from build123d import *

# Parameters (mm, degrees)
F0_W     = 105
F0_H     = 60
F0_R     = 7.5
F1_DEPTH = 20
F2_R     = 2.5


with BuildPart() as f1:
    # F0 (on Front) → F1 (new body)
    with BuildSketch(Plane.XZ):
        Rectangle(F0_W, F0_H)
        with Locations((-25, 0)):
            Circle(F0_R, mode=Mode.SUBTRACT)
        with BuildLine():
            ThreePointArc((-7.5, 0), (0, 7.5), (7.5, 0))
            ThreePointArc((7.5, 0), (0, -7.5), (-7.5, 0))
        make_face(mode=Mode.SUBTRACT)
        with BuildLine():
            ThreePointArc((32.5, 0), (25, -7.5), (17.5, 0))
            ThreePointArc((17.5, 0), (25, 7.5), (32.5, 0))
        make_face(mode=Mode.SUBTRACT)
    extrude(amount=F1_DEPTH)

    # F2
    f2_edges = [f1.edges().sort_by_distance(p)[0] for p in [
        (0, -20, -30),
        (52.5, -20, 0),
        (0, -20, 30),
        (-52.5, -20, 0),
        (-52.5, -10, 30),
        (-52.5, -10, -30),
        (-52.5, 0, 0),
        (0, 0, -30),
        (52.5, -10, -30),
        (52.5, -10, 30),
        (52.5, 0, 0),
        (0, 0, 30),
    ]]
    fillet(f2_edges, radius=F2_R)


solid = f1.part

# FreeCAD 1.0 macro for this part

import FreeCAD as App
import Part
import Sketcher
Q = App.Units.Quantity


def edges_at(feature, points):
    """Names of the edges that pass closest to the given points."""
    edges = feature.Shape.Edges
    near = lambda p: min(range(len(edges)), key=lambda i: edges[i].distToShape(Part.Vertex(*p))[0])
    return sorted({f"Edge{near(p) + 1}" for p in points})


def add_polygon(sketch, points):
    """Adds a closed chain of lines whose ends are joined by coincident constraints."""
    first, n = sketch.GeometryCount, len(points)
    for a, b in zip(points, points[1:] + points[:1]):
        sketch.addGeometry(Part.LineSegment(App.Vector(*a, 0), App.Vector(*b, 0)), False)
    for i in range(n):
        sketch.addConstraint(Sketcher.Constraint("Coincident", first + i, 2, first + (i + 1) % n, 1))

doc = App.newDocument("Part")
body = doc.addObject("PartDesign::Body", "Body")

# Sketch on XZ plane
sketch1 = body.newObject("Sketcher::SketchObject", "Sketch")
sketch1.AttachmentSupport = (doc.getObject("XZ_Plane"), [""])
sketch1.MapMode = "FlatFace"
add_polygon(sketch1, [(-52, 30), (-52, -30), (52, -30), (52, 30)])  # lines 0-3
sketch1.addGeometry(Part.Circle(App.Vector(-25, 0, 0), App.Vector(0, 0, 1), 8), False)  # 4
sketch1.addGeometry(Part.Circle(App.Vector(0, 0, 0), App.Vector(0, 0, 1), 8), False)  # 5
sketch1.addGeometry(Part.Circle(App.Vector(25, 0, 0), App.Vector(0, 0, 1), 8), False)  # 6
sketch1.addConstraint([
    Sketcher.Constraint("Vertical", 0),
    Sketcher.Constraint("Horizontal", 1),
    Sketcher.Constraint("Vertical", 2),
    Sketcher.Constraint("Horizontal", 3),
    Sketcher.Constraint("Coincident", 5, 3, -1, 1),
    Sketcher.Constraint("Equal", 4, 5),
    Sketcher.Constraint("Equal", 5, 6),
    Sketcher.Constraint("Symmetric", 4, 3, 6, 3, -1, 1),
    Sketcher.Constraint("Symmetric", 0, 2, 2, 2, -1, 1),
    Sketcher.Constraint("PointOnObject", 4, 3, -1),
    Sketcher.Constraint("Diameter", 4, Q("15 mm")),
    Sketcher.Constraint("DistanceX", 1, 1, 1, 2, Q("105 mm")),
    Sketcher.Constraint("DistanceY", 0, 2, 0, 1, Q("60 mm")),
    Sketcher.Constraint("DistanceX", 4, 3, -1, 1, Q("25 mm")),
])
pad1 = body.newObject("PartDesign::Pad", "Pad")
pad1.Profile = sketch1
pad1.Length = 20
doc.recompute()

fillet = body.newObject("PartDesign::Fillet", "Fillet")
fillet.Base = (pad1, edges_at(pad1, [
    (0, -20, -30),
    (52.5, -20, 0),
    (0, -20, 30),
    (-52.5, -20, 0),
    (-52.5, -10, 30),
    (-52.5, -10, -30),
    (-52.5, 0, 0),
    (0, 0, -30),
    (52.5, -10, -30),
    (52.5, -10, 30),
    (52.5, 0, 0),
    (0, 0, 30),
]))
fillet.Radius = 2.5

doc.recompute()
